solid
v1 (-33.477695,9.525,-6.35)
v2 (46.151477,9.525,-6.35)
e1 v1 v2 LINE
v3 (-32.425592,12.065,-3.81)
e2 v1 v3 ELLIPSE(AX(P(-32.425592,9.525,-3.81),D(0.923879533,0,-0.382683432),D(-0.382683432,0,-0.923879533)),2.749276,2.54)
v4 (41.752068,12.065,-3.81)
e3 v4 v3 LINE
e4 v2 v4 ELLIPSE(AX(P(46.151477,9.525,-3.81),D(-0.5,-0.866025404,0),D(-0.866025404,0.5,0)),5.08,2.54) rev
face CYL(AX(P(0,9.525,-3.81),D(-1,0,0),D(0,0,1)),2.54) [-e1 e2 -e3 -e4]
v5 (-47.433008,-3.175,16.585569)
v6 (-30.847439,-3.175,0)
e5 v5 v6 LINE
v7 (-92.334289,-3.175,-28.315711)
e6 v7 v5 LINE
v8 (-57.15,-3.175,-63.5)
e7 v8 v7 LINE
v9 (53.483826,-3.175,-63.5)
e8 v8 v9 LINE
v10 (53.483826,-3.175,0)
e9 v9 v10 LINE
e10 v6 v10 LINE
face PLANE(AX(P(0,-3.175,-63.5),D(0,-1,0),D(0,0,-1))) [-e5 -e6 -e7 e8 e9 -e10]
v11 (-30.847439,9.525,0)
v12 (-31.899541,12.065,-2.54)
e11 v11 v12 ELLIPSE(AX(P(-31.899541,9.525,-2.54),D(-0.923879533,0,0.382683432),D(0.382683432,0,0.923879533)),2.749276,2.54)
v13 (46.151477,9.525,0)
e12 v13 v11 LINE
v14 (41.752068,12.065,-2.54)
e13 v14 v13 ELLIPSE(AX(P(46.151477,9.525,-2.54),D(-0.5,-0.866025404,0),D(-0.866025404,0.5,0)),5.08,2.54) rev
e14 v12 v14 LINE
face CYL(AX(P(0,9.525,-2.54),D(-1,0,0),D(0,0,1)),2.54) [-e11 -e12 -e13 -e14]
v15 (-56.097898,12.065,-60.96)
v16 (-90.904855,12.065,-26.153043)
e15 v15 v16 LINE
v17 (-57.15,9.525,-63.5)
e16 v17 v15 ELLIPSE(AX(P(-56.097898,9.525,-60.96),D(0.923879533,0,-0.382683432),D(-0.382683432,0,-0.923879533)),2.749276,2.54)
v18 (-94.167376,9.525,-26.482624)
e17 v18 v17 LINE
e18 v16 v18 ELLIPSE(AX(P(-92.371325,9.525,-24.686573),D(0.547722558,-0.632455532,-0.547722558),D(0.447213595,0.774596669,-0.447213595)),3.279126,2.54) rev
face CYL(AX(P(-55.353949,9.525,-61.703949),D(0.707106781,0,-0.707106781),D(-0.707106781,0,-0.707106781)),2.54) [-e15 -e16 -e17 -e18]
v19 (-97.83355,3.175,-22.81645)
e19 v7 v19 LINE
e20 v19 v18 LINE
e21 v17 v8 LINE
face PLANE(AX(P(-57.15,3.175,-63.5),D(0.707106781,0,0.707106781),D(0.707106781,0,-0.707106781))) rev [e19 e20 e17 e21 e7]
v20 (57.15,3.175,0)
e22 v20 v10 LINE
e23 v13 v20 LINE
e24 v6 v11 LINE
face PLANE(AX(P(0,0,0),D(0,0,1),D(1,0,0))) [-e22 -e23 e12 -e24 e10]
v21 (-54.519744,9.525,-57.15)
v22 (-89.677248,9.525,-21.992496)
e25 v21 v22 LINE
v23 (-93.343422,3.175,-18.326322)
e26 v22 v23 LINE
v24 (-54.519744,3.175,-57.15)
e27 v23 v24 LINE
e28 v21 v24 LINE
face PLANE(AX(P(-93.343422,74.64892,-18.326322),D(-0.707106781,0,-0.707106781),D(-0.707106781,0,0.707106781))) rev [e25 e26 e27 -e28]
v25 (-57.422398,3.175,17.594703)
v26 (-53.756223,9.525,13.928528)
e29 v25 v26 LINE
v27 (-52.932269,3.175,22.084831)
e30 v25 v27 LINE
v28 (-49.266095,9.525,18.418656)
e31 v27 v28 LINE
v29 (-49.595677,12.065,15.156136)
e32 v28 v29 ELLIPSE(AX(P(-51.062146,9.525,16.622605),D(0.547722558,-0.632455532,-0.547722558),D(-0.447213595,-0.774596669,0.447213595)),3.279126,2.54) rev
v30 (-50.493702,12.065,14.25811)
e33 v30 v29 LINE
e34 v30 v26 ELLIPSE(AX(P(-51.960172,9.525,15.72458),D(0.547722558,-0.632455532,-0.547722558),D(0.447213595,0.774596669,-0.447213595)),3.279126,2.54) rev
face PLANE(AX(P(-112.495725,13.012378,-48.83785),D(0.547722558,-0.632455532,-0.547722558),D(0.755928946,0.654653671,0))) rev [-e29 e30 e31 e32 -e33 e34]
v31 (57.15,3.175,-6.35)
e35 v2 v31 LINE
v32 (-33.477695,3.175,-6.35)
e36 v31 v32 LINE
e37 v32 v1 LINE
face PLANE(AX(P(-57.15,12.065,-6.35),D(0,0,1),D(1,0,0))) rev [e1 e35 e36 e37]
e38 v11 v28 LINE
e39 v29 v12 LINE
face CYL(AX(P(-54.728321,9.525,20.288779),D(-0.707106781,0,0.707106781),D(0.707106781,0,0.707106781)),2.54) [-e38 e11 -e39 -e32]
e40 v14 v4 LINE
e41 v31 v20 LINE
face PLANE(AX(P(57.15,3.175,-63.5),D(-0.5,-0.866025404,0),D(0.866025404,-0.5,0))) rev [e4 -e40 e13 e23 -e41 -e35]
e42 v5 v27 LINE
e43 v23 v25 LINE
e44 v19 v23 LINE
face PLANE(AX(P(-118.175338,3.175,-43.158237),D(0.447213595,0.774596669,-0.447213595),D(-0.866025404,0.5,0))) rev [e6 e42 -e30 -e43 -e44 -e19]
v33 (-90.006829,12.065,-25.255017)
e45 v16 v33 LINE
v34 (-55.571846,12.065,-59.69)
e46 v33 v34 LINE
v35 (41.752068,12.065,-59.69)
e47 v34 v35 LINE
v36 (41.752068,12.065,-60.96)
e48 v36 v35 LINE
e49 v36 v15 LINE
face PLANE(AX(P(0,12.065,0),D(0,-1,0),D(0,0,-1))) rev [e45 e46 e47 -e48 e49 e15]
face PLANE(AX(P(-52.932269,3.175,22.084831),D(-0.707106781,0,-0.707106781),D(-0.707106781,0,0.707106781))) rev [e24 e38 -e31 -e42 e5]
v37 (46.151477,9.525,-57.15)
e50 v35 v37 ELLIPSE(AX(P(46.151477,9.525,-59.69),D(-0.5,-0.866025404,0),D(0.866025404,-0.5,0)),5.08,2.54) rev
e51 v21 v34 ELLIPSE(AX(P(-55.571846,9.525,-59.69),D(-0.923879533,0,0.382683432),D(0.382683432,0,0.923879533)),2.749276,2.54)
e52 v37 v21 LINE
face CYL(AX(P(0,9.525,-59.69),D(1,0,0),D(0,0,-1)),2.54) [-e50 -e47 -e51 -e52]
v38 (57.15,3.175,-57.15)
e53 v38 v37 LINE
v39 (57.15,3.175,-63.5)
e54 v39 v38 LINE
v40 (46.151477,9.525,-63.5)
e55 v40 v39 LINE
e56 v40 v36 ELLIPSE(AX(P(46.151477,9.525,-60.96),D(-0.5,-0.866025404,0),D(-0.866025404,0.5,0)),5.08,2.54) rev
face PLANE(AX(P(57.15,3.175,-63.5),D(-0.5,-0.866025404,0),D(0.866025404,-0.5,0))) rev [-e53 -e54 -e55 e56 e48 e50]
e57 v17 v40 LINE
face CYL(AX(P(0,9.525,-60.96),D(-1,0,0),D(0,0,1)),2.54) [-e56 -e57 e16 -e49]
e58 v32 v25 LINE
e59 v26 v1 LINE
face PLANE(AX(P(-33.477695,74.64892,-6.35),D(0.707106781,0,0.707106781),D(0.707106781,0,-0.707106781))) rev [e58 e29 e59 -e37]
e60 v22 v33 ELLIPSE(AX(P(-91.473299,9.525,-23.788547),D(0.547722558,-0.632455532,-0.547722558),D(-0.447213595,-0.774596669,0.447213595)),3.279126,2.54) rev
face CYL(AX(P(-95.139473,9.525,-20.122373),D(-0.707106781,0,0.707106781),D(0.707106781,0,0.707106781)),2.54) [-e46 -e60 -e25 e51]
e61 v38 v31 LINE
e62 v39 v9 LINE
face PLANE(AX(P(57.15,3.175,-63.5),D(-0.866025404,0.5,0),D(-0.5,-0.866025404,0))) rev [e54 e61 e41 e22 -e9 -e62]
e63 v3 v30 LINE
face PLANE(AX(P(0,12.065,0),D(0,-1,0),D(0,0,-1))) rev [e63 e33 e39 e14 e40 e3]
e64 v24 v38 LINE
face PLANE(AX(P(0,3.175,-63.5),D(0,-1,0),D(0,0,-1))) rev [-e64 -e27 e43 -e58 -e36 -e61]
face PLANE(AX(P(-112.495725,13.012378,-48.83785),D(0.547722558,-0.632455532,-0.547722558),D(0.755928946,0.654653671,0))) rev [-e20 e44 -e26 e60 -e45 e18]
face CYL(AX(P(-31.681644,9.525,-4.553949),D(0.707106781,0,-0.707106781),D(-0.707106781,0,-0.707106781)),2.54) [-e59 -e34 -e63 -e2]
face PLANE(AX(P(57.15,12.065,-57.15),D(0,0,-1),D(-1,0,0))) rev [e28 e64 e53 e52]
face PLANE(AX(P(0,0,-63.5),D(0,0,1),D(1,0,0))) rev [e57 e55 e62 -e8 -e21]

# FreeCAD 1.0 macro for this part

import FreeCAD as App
import Part
import Sketcher

V = App.Vector
Q = App.Units.Quantity


def edges_at(feature, points):
    """Names of the edges that pass closest to the given points."""
    edges = feature.Shape.Edges
    near = lambda p: min(range(len(edges)), key=lambda i: edges[i].distToShape(Part.Vertex(*p))[0])
    return sorted({f"Edge{near(p) + 1}" for p in points})


def add_polygon(sketch, points):
    """Adds a closed chain of lines whose ends are joined by coincident constraints."""
    first, n = sketch.GeometryCount, len(points)
    for a, b in zip(points, points[1:] + points[:1]):
        sketch.addGeometry(Part.LineSegment(App.Vector(*a, 0), App.Vector(*b, 0)), False)
    for i in range(n):
        sketch.addConstraint(Sketcher.Constraint("Coincident", first + i, 2, first + (i + 1) % n, 1))

doc = App.newDocument("Part")
body = doc.addObject("PartDesign::Body", "Body")

# Sketch on XY plane
sketch1 = doc.addObject("Sketcher::SketchObject", "Sketch")
body.addObject(sketch1)
sketch1.AttachmentSupport = (doc.XY_Plane, [""])
sketch1.MapMode = "FlatFace"
add_polygon(sketch1, [(-57.15, 3.175), (-57.15, -3.175), (57.15, -3.175), (57.15, 3.175)])  # lines 0-3
sketch1.addConstraint([
    Sketcher.Constraint("Vertical", 0),
    Sketcher.Constraint("Horizontal", 1),
    Sketcher.Constraint("Vertical", 2),
    Sketcher.Constraint("Horizontal", 3),
    Sketcher.Constraint("Symmetric", 0, 2, 2, 2, -1, 1),
    Sketcher.Constraint("DistanceX", 1, 1, 1, 2, Q("4.5 in")),
    Sketcher.Constraint("DistanceY", 0, 2, 0, 1, Q("0.25 in")),
])
pad1 = doc.addObject("PartDesign::Pad", "Pad")
body.addObject(pad1)
pad1.Profile = sketch1
pad1.Length = Q("2.5 in")
pad1.Reversed = True

# Sketch on XZ plane
sketch2 = doc.addObject("Sketcher::SketchObject", "Sketch001")
body.addObject(sketch2)
sketch2.AttachmentSupport = (doc.XZ_Plane, [""])
sketch2.MapMode = "FlatFace"
sketch2.AttachmentOffset = App.Placement(V(0, 0, -0.125 * 25.4), App.Rotation())
add_polygon(sketch2, [(-57.15, -63.5), (-57.15, -57.15), (57.15, -57.15), (57.15, -63.5)])  # lines 0-3
add_polygon(sketch2, [(-57.15, -6.35), (-57.15, 0), (57.15, 0), (57.15, -6.35)])  # lines 4-7
sketch2.addConstraint([
    Sketcher.Constraint("Vertical", 0),
    Sketcher.Constraint("Horizontal", 1),
    Sketcher.Constraint("Vertical", 2),
    Sketcher.Constraint("Horizontal", 3),
    Sketcher.Constraint("Vertical", 4),
    Sketcher.Constraint("Horizontal", 5),
    Sketcher.Constraint("Vertical", 6),
    Sketcher.Constraint("Horizontal", 7),
    Sketcher.Constraint("Symmetric", 4, 2, 5, 2, -1, 1),
    Sketcher.Constraint("Vertical", 3, 2, 4, 2),
    Sketcher.Constraint("Vertical", 2, 2, 5, 2),
    Sketcher.Constraint("Equal", 2, 4),
    Sketcher.Constraint("DistanceX", 1, 1, 1, 2, Q("4.5 in")),
    Sketcher.Constraint("DistanceY", 1, 2, 6, 2, Q("2 in")),
    Sketcher.Constraint("DistanceY", 0, 1, 0, 2, Q("0.25 in")),
])
pad2 = doc.addObject("PartDesign::Pad", "Pad001")
body.addObject(pad2)
pad2.Profile = sketch2
pad2.Length = Q("0.35 in")
pad2.Reversed = True

# Sketch on XY plane
sketch3 = doc.addObject("Sketcher::SketchObject", "Sketch002")
body.addObject(sketch3)
sketch3.AttachmentSupport = (doc.XY_Plane, [""])
sketch3.MapMode = "FlatFace"
add_polygon(sketch3, [(41.752068, 12.065), (57.15, 3.175), (53.483826, -3.175), (56.233456, -4.7625), (57.15, -3.175), (66.675, 13.322784), (48.527438, 23.800284)])  # lines 0-6
sketch3.addConstraint([
    Sketcher.Constraint("Symmetric", 0, 2, 3, 2, -1),
    Sketcher.Constraint("Perpendicular", 0, 1),
    Sketcher.Constraint("Perpendicular", 1, 2),
    Sketcher.Constraint("Perpendicular", 2, 3),
    Sketcher.Constraint("Parallel", 3, 4),
    Sketcher.Constraint("Perpendicular", 4, 5),
    Sketcher.Constraint("Perpendicular", 5, 6),
    Sketcher.Constraint("Horizontal", 1, 2, 3, 2),
    Sketcher.Constraint("Angle", 0, Q("-30 deg")),
    Sketcher.Constraint("Distance", 0, Q("0.7 in")),
    Sketcher.Constraint("DistanceY", 1, 2, 6, 2, Q("0.6 in")),
    Sketcher.Constraint("Distance", 4, Q("0.75 in")),
    Sketcher.Constraint("DistanceX", -1, 1, 0, 2, Q("2.25 in")),
])
pocket1 = doc.addObject("PartDesign::Pocket", "Pocket")
body.addObject(pocket1)
pocket1.Profile = sketch3
pocket1.Type = "ThroughAll"

# Sketch on XZ plane
sketch4 = doc.addObject("Sketcher::SketchObject", "Sketch003")
body.addObject(sketch4)
sketch4.AttachmentSupport = (doc.XZ_Plane, [""])
sketch4.MapMode = "FlatFace"
add_polygon(sketch4, [(-30.847439, 0), (-57.15, -63.5), (-57.15, 0)])  # lines 0-2
sketch4.addConstraint([
    Sketcher.Constraint("Vertical", 1),
    Sketcher.Constraint("Horizontal", 2),
    Sketcher.Constraint("PointOnObject", 1, 2, -1),
    Sketcher.Constraint("DistanceY", 1, 1, 1, 2, Q("2.5 in")),
    Sketcher.Constraint("Angle", 0, Q("-112.5 deg")),
    Sketcher.Constraint("DistanceX", 0, 2, -1, 1, Q("2.25 in")),
])
pocket2 = doc.addObject("PartDesign::Pocket", "Pocket001")
body.addObject(pocket2)
pocket2.Profile = sketch4
pocket2.Type = "ThroughAll"
pocket2.Midplane = True

# Sketch on XZ plane
sketch5 = doc.addObject("Sketcher::SketchObject", "Sketch004")
body.addObject(sketch5)
sketch5.AttachmentSupport = (doc.XZ_Plane, [""])
sketch5.MapMode = "FlatFace"
add_polygon(sketch5, [(-30.847439, 0), (-57.15, -63.5), (-97.83355, -22.81645), (-52.932269, 22.084831)])  # lines 0-3
sketch5.addConstraint([
    Sketcher.Constraint("PointOnObject", 3, 2, -1),
    Sketcher.Constraint("Perpendicular", 1, 2),
    Sketcher.Constraint("Perpendicular", 2, 3),
    Sketcher.Constraint("Angle", 1, Q("135 deg")),
    Sketcher.Constraint("Distance", 2, Q("2.5 in")),
    Sketcher.Constraint("DistanceY", 0, 2, -1, 1, Q("2.5 in")),
    Sketcher.Constraint("DistanceX", 0, 2, -1, 1, Q("2.25 in")),
    Sketcher.Constraint("Distance", 1, 57.535228),
])
pad3 = doc.addObject("PartDesign::Pad", "Pad002")
body.addObject(pad3)
pad3.Profile = sketch5
pad3.Length = Q("0.25 in")
pad3.Midplane = True

# Sketch on XZ plane
sketch6 = doc.addObject("Sketcher::SketchObject", "Sketch005")
body.addObject(sketch6)
sketch6.AttachmentSupport = (doc.XZ_Plane, [""])
sketch6.MapMode = "FlatFace"
sketch6.AttachmentOffset = App.Placement(V(0, 0, -0.125 * 25.4), App.Rotation())
add_polygon(sketch6, [(-57.15, -63.5), (-97.83355, -22.81645), (-93.343422, -18.326322), (-54.519744, -57.15)])  # lines 0-3
add_polygon(sketch6, [(-33.477695, -6.35), (-57.422398, 17.594703), (-52.932269, 22.084831), (-30.847439, 0)])  # lines 4-7
sketch6.addConstraint([
    Sketcher.Constraint("PointOnObject", 6, 2, -1),
    Sketcher.Constraint("Perpendicular", 0, 1),
    Sketcher.Constraint("Perpendicular", 1, 2),
    Sketcher.Constraint("Parallel", 2, 4),
    Sketcher.Constraint("Perpendicular", 4, 5),
    Sketcher.Constraint("Perpendicular", 5, 6),
    Sketcher.Constraint("Parallel", 3, 7),
    Sketcher.Constraint("Equal", 1, 5),
    Sketcher.Constraint("Angle", 0, Q("135 deg")),
    Sketcher.Constraint("DistanceY", 2, 2, 7, 2, Q("2 in")),
    Sketcher.Constraint("DistanceY", 3, 2, -1, 1, Q("2.5 in")),
    Sketcher.Constraint("Angle", 3, Q("-112.5 deg")),
    Sketcher.Constraint("DistanceX", 3, 2, -1, 1, Q("2.25 in")),
    Sketcher.Constraint("Distance", 0, 57.535228),
    Sketcher.Constraint("DistanceX", 5, 2, -1, 1, 52.932269),
    Sketcher.Constraint("DistanceY", -1, 1, 5, 2, 22.084831),
])
pad4 = doc.addObject("PartDesign::Pad", "Pad003")
body.addObject(pad4)
pad4.Profile = sketch6
pad4.Length = Q("0.35 in")
pad4.Reversed = True
doc.recompute()

fillet = doc.addObject("PartDesign::Fillet", "Fillet")
body.addObject(fillet)
fillet.Base = (pad4, edges_at(pad4, [
    (-41.89, 12.065, 11.042),
    (5.452, 12.065, 0),
    (4.137, 12.065, -6.35),
    (-45.45, 12.065, 5.622),
    (-73.932, 12.065, -37.738),
    (-6.384, 12.065, -57.15),
    (-7.699, 12.065, -63.5),
    (-77.492, 12.065, -43.158),
]))
fillet.Radius = Q("0.1 in")

# Sketch on an angled plane
sketch7 = doc.addObject("Sketcher::SketchObject", "Sketch006")
body.addObject(sketch7)
sketch7.Placement = App.Placement(V(-15.423719, 0, -15.423719), App.Rotation(V(0.707106781, 0, -0.707106781), V(0, 0.999999999, 0), V(0.707106781, 0, 0.707106781), "ZXY"))
add_polygon(sketch7, [(-45.26797, -3.175), (-53.0451, 3.175), (-45.012915, 13.012378), (-56.91054, 22.726748), (-72.974911, 3.051993), (-53.300156, -13.012378)])  # lines 0-5
sketch7.addConstraint([
    Sketcher.Constraint("Perpendicular", 0, 1),
    Sketcher.Constraint("Perpendicular", 1, 2),
    Sketcher.Constraint("Perpendicular", 2, 3),
    Sketcher.Constraint("Perpendicular", 3, 4),
    Sketcher.Constraint("Perpendicular", 4, 5),
    Sketcher.Constraint("Equal", 3, 4),
    Sketcher.Constraint("Equal", 1, 5),
    Sketcher.Constraint("Distance", 3, Q("1 in")),
    Sketcher.Constraint("DistanceY", 5, 2, 0, 2, Q("0.25 in")),
    Sketcher.Constraint("DistanceY", -1, 1, 0, 2, Q("0.125 in")),
    Sketcher.Constraint("DistanceX", 0, 2, -1, 1, 53.0451),
    Sketcher.Constraint("Distance", 0, 10.040232),
])
pocket3 = doc.addObject("PartDesign::Pocket", "Pocket002")
body.addObject(pocket3)
pocket3.Profile = sketch7
pocket3.Type = "ThroughAll"

doc.recompute()
